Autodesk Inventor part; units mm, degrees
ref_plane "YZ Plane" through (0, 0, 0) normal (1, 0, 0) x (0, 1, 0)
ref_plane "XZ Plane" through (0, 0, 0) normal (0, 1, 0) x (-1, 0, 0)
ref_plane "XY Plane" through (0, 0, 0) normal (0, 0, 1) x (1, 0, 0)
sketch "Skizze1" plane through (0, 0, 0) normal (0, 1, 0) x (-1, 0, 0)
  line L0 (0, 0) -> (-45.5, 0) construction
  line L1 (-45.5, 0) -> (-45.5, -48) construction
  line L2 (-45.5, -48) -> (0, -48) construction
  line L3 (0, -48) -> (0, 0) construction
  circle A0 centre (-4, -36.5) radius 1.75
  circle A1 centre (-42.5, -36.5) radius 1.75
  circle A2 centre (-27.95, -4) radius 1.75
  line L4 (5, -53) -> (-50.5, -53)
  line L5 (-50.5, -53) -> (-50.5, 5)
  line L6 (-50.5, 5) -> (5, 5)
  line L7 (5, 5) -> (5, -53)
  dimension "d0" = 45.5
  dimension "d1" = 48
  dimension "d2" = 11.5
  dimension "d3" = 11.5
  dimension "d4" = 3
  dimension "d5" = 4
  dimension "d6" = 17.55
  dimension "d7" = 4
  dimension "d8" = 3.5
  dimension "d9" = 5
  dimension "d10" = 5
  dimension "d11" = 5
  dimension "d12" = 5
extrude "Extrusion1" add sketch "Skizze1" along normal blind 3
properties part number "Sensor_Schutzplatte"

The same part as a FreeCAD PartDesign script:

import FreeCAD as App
import Part
import Sketcher

doc = App.newDocument("Part")
body = doc.addObject("PartDesign::Body", "Body")

sketch1 = body.newObject("Sketcher::SketchObject", "Sketch")
sketch1.AttachmentSupport = (doc.getObject("XZ_Plane"), [""])
sketch1.MapMode = "FlatFace"
sketch1.addGeometry([
    Part.LineSegment(App.Vector(50.5, -53, 0), App.Vector(-5, -53, 0)),
    Part.LineSegment(App.Vector(-5, -53, 0), App.Vector(-5, 5, 0)),
    Part.LineSegment(App.Vector(-5, 5, 0), App.Vector(50.5, 5, 0)),
    Part.LineSegment(App.Vector(50.5, 5, 0), App.Vector(50.5, -53, 0)),
    Part.Circle(App.Vector(42.5, -36.5, 0), App.Vector(0, 0, 1), 1.8),
    Part.Circle(App.Vector(4, -36.5, 0), App.Vector(0, 0, 1), 1.8),
    Part.Circle(App.Vector(27.9, -4, 0), App.Vector(0, 0, 1), 1.8),
], False)
sketch1.addConstraint([
    Sketcher.Constraint("Coincident", 0, 2, 1, 1),
    Sketcher.Constraint("Coincident", 1, 2, 2, 1),
    Sketcher.Constraint("Coincident", 2, 2, 3, 1),
    Sketcher.Constraint("Coincident", 3, 2, 0, 1),
    Sketcher.Constraint("Horizontal", 0),
    Sketcher.Constraint("Vertical", 1),
    Sketcher.Constraint("Horizontal", 2),
    Sketcher.Constraint("Vertical", 3),
    Sketcher.Constraint("Equal", 4, 5),
    Sketcher.Constraint("Equal", 5, 6),
    Sketcher.Constraint("Horizontal", 4, 3, 5, 3),
    Sketcher.Constraint("Diameter", 4, 3.5),
    Sketcher.Constraint("DistanceX", -1, 1, 5, 3, 4.0),
    Sketcher.Constraint("DistanceY", 6, 3, -1, 1, 4.0),
    Sketcher.Constraint("DistanceX", 0, 2, -1, 1, 5.0),
    Sketcher.Constraint("DistanceY", -1, 1, 1, 2, 5.0),
    Sketcher.Constraint("DistanceY", 1, 1, 1, 2, 58.0),
    Sketcher.Constraint("DistanceX", 0, 2, 0, 1, 55.5),
    Sketcher.Constraint("DistanceX", 4, 3, 2, 2, 8.0),
    Sketcher.Constraint("DistanceY", 4, 3, -1, 1, 36.5),
    Sketcher.Constraint("DistanceX", -1, 1, 6, 3, 27.95),
])
pad1 = body.newObject("PartDesign::Pad", "Pad")
pad1.Profile = sketch1
pad1.Length = 3
pad1.Reversed = True

doc.recompute()
